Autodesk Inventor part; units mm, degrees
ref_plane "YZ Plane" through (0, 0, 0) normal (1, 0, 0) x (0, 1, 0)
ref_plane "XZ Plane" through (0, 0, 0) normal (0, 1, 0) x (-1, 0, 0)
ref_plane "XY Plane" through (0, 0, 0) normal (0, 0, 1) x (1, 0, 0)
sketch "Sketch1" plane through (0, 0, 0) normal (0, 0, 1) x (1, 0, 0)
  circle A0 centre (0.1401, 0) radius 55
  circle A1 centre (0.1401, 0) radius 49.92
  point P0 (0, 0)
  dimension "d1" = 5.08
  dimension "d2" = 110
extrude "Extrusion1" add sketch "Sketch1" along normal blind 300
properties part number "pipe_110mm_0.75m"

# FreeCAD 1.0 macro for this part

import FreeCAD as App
import Part
import Sketcher
from FreeCAD import Vector
Q = App.Units.Quantity

doc = App.newDocument("Part")
body = doc.addObject("PartDesign::Body", "Body")

# Sketch on XY plane
sketch1 = body.newObject("Sketcher::SketchObject", "Sketch")
sketch1.AttachmentSupport = (doc.getObject("XY_Plane"), [""])
sketch1.MapMode = "FlatFace"
sketch1.addGeometry(Part.Circle(Vector(0, 0, 0), Vector(0, 0, 1), 55), False)
sketch1.addGeometry(Part.Circle(Vector(0, 0, 0), Vector(0, 0, 1), 50), False)
sketch1.addConstraint(Sketcher.Constraint("Coincident", 1, 3, 0, 3))
sketch1.addConstraint(Sketcher.Constraint("PointOnObject", 0, 3, -1))
sketch1.addConstraint(Sketcher.Constraint("Diameter", 0, Q("110 mm")))
sketch1.addConstraint(Sketcher.Constraint("Diameter", 1, Q("99.84 mm")))
sketch1.addConstraint(Sketcher.Constraint("DistanceX", -1, 1, 0, 3, Q("0.14 mm")))
pad1 = body.newObject("PartDesign::Pad", "Pad")
pad1.Profile = sketch1
pad1.Length = 300

doc.recompute()
